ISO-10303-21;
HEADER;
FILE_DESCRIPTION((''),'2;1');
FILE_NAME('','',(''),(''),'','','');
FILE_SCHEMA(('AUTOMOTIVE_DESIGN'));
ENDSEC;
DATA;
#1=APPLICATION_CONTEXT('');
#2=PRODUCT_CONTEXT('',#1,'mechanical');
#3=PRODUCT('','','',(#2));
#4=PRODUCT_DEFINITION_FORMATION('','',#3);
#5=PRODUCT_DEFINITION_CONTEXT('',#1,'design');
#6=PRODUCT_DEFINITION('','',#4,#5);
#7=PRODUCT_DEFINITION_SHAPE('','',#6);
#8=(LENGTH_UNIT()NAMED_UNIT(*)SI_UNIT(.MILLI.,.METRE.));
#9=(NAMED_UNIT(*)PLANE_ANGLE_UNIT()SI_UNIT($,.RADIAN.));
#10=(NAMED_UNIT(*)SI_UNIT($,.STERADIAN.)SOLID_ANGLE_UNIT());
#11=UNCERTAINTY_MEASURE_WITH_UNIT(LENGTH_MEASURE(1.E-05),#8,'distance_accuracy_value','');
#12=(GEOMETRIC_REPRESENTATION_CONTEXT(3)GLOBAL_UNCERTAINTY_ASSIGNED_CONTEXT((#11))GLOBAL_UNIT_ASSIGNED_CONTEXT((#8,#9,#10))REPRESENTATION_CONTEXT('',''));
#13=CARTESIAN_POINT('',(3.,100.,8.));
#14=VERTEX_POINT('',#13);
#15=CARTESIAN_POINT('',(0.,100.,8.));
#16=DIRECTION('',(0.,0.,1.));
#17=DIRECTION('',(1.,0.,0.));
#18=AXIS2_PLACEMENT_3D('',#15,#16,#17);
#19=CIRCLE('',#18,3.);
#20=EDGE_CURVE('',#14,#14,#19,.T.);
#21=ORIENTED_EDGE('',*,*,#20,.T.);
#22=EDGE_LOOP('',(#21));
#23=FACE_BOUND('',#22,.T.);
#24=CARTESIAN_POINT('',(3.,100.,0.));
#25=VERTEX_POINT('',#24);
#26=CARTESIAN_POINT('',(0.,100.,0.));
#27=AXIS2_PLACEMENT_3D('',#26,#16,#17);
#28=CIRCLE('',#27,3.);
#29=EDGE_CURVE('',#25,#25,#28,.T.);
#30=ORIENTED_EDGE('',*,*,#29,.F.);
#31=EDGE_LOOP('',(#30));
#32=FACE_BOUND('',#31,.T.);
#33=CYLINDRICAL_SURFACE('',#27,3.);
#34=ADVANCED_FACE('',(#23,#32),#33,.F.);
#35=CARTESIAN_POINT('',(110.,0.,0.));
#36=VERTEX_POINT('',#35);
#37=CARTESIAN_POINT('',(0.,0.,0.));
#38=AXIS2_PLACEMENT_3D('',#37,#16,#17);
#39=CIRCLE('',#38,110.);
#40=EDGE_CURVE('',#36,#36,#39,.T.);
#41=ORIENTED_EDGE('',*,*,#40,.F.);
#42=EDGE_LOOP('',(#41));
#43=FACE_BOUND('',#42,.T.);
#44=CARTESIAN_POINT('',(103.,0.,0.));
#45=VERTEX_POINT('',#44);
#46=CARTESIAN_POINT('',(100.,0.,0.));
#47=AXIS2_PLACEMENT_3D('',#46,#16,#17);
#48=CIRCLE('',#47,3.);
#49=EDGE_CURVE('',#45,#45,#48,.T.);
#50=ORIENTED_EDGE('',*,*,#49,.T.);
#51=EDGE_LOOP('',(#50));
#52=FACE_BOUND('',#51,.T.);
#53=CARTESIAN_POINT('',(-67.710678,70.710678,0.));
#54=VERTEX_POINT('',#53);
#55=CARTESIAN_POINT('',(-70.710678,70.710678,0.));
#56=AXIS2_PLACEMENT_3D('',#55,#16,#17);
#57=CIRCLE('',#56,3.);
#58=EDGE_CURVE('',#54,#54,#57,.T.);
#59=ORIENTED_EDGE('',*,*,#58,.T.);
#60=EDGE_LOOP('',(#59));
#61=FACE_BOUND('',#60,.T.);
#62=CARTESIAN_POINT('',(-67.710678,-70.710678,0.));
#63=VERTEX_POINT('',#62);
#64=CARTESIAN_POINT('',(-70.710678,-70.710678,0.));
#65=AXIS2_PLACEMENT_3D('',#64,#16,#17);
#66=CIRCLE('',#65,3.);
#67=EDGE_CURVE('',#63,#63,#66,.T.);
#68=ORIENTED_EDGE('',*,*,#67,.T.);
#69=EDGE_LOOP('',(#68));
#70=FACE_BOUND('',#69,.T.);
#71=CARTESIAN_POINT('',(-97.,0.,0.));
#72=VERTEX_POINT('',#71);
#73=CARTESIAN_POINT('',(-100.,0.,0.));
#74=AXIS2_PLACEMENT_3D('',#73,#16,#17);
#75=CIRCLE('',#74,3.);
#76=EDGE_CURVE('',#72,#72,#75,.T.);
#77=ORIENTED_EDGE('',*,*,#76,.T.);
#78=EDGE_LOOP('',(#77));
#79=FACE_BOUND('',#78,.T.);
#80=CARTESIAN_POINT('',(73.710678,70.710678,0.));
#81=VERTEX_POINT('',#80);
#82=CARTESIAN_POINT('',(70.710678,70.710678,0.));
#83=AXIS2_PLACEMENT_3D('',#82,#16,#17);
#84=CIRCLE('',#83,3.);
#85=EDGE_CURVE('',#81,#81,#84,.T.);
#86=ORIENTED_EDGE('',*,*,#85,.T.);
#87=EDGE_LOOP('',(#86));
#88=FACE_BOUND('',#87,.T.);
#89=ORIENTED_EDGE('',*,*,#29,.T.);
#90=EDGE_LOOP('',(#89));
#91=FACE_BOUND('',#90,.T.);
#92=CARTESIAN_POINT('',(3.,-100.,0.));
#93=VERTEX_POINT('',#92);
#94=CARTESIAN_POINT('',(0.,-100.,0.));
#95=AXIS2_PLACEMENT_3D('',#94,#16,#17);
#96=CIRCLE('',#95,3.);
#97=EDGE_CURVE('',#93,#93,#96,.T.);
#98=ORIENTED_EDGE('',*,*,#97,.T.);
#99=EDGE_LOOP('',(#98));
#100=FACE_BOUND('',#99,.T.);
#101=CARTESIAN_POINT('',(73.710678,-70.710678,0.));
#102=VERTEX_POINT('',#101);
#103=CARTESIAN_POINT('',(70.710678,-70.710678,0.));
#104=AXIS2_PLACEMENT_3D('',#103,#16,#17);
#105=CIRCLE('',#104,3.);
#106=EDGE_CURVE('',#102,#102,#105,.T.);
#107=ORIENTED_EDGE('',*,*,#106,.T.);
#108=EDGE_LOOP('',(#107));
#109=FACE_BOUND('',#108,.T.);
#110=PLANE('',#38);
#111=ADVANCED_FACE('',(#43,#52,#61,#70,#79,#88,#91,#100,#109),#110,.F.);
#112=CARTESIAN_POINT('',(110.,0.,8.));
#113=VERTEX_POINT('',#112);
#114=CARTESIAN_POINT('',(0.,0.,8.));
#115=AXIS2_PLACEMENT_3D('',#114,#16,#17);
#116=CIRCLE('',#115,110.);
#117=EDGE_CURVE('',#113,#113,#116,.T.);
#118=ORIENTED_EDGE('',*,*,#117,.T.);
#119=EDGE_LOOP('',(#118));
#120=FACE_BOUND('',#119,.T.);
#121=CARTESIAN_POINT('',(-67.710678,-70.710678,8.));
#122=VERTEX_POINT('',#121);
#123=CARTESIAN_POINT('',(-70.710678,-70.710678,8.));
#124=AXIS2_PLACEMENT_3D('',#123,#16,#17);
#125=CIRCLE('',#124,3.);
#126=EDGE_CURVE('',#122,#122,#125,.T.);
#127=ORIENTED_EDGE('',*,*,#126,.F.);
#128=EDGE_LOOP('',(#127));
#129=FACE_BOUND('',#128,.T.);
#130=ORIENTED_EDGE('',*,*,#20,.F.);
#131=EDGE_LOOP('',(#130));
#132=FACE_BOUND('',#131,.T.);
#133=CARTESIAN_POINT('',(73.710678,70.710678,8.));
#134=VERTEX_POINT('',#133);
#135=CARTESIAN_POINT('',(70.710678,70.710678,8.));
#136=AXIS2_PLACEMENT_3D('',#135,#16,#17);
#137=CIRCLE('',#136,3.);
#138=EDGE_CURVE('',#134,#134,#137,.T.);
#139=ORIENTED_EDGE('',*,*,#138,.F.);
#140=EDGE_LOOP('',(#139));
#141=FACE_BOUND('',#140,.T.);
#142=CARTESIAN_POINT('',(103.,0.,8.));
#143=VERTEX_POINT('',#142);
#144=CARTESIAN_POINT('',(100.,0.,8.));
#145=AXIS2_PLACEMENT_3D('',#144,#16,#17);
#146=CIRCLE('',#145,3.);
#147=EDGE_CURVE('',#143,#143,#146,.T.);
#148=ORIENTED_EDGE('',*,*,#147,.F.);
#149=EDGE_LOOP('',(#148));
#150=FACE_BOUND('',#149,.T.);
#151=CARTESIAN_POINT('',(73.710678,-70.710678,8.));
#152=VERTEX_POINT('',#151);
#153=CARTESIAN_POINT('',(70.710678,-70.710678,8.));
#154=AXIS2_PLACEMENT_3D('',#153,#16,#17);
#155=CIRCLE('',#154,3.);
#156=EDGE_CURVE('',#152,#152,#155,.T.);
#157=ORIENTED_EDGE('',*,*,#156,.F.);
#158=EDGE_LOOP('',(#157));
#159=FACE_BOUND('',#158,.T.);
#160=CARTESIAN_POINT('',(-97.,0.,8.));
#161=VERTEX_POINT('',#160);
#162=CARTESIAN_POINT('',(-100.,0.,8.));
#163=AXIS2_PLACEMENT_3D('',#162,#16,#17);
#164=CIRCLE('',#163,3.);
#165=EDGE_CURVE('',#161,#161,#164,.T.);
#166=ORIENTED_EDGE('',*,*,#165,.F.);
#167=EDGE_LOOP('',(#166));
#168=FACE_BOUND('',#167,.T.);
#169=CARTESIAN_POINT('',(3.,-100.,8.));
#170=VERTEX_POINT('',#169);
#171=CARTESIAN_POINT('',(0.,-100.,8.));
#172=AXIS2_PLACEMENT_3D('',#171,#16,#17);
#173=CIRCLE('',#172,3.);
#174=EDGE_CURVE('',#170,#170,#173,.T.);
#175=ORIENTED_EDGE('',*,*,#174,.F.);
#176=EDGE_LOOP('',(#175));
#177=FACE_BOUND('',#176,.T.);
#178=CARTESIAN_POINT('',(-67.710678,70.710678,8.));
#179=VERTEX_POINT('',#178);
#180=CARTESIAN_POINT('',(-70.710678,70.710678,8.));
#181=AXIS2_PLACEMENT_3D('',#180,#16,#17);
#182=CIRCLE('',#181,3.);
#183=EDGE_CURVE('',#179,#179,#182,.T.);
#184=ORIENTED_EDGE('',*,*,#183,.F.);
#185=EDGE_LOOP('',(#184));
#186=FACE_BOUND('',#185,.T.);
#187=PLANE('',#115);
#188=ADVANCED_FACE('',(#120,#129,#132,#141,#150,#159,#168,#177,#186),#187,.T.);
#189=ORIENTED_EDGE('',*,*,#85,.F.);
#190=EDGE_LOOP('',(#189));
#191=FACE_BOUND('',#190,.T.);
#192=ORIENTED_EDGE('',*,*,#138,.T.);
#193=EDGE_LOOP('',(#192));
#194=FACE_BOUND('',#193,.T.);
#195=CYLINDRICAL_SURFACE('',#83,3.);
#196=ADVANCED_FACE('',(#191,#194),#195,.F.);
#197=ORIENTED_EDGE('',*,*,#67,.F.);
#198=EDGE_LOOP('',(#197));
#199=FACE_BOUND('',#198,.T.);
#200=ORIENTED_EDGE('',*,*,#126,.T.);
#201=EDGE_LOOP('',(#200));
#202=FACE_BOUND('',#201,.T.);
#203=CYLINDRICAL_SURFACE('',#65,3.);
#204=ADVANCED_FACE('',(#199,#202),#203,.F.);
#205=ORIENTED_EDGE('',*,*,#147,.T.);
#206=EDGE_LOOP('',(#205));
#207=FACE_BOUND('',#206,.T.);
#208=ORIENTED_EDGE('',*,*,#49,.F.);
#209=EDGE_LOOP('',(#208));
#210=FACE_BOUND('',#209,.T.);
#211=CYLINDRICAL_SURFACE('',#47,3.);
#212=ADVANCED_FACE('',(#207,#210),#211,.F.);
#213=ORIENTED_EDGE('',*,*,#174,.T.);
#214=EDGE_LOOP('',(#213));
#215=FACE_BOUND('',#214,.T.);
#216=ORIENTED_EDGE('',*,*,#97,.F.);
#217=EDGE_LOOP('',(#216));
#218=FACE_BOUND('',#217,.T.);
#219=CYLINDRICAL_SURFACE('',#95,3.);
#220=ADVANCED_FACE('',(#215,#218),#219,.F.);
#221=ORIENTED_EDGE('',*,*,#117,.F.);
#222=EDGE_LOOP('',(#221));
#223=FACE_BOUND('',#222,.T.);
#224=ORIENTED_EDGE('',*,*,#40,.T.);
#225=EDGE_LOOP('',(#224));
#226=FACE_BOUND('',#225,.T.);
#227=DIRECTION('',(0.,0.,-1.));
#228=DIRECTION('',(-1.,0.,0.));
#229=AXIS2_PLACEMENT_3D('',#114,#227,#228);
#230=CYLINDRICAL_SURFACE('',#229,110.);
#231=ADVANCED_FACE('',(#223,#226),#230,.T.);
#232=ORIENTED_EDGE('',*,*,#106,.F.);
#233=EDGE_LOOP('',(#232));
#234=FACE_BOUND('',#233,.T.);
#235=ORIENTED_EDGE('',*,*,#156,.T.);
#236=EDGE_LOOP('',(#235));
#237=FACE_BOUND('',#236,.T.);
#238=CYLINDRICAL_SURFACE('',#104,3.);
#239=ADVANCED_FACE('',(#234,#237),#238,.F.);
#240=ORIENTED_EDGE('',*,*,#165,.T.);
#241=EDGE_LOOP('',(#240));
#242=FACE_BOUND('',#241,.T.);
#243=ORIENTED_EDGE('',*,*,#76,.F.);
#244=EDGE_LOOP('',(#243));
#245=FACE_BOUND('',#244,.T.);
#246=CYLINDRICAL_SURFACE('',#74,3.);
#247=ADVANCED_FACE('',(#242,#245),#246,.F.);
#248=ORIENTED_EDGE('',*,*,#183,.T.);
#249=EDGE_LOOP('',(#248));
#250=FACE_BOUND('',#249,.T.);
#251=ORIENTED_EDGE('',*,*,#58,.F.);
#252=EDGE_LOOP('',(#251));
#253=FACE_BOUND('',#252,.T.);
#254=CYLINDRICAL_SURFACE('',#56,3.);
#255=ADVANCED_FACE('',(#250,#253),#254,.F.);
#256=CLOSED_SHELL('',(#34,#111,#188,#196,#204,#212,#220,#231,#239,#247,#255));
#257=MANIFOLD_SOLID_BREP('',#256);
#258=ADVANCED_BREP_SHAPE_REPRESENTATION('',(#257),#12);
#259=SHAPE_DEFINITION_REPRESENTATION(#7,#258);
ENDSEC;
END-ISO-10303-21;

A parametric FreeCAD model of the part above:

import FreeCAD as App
import Part
import Sketcher

V = App.Vector

doc = App.newDocument("Part")
body = doc.addObject("PartDesign::Body", "Body")

sketch1 = body.newObject("Sketcher::SketchObject", "Sketch")
sketch1.AttachmentSupport = (doc.getObject("XY_Plane"), [""])
sketch1.MapMode = "FlatFace"
sketch1.addGeometry(Part.Circle(V(0, 0, 0), V(0, 0, 1), 110), False)
sketch1.addConstraint([
    Sketcher.Constraint("Coincident", 0, 3, -1, 1),
    Sketcher.Constraint("Diameter", 0, 220.0),
])
pad1 = body.newObject("PartDesign::Pad", "Pad")
pad1.Profile = sketch1
pad1.Length = 8

sketch2 = body.newObject("Sketcher::SketchObject", "Sketch001")
sketch2.AttachmentSupport = (doc.getObject("XY_Plane"), [""])
sketch2.MapMode = "FlatFace"
sketch2.AttachmentOffset = App.Placement(V(0, 0, 8), App.Rotation())
sketch2.addGeometry([
    Part.Circle(V(0, 100, 0), V(0, 0, 1), 3),
    Part.Circle(V(70.710678, 70.710678, 0), V(0, 0, 1), 3),
    Part.Circle(V(100, 0, 0), V(0, 0, 1), 3),
    Part.Circle(V(70.710678, -70.710678, 0), V(0, 0, 1), 3),
    Part.Circle(V(0, -100, 0), V(0, 0, 1), 3),
    Part.Circle(V(-70.710678, -70.710678, 0), V(0, 0, 1), 3),
    Part.Circle(V(-100, 0, 0), V(0, 0, 1), 3),
    Part.Circle(V(-70.710678, 70.710678, 0), V(0, 0, 1), 3),
], False)
sketch2.addConstraint([
    Sketcher.Constraint("Equal", 0, 1),
    Sketcher.Constraint("Equal", 1, 2),
    Sketcher.Constraint("Equal", 2, 3),
    Sketcher.Constraint("Equal", 3, 4),
    Sketcher.Constraint("Equal", 4, 5),
    Sketcher.Constraint("Equal", 5, 6),
    Sketcher.Constraint("Equal", 6, 7),
    Sketcher.Constraint("Symmetric", 0, 3, 4, 3, -1, 1),
    Sketcher.Constraint("Symmetric", 1, 3, 5, 3, -1, 1),
    Sketcher.Constraint("Symmetric", 2, 3, 6, 3, -1, 1),
    Sketcher.Constraint("Symmetric", 3, 3, 7, 3, -1, 1),
    Sketcher.Constraint("Symmetric", 3, 3, 5, 3, -2),
    Sketcher.Constraint("PointOnObject", 0, 3, -2),
    Sketcher.Constraint("PointOnObject", 2, 3, -1),
    Sketcher.Constraint("Diameter", 0, 6.0),
    Sketcher.Constraint("DistanceY", -1, 1, 0, 3, 100.0),
    Sketcher.Constraint("DistanceX", -1, 1, 2, 3, 100.0),
    Sketcher.Constraint("DistanceX", -1, 1, 1, 3, 70.710678),
    Sketcher.Constraint("DistanceY", -1, 1, 1, 3, 70.710678),
])
pocket1 = body.newObject("PartDesign::Pocket", "Pocket")
pocket1.Profile = sketch2
pocket1.Length = 8

doc.recompute()
